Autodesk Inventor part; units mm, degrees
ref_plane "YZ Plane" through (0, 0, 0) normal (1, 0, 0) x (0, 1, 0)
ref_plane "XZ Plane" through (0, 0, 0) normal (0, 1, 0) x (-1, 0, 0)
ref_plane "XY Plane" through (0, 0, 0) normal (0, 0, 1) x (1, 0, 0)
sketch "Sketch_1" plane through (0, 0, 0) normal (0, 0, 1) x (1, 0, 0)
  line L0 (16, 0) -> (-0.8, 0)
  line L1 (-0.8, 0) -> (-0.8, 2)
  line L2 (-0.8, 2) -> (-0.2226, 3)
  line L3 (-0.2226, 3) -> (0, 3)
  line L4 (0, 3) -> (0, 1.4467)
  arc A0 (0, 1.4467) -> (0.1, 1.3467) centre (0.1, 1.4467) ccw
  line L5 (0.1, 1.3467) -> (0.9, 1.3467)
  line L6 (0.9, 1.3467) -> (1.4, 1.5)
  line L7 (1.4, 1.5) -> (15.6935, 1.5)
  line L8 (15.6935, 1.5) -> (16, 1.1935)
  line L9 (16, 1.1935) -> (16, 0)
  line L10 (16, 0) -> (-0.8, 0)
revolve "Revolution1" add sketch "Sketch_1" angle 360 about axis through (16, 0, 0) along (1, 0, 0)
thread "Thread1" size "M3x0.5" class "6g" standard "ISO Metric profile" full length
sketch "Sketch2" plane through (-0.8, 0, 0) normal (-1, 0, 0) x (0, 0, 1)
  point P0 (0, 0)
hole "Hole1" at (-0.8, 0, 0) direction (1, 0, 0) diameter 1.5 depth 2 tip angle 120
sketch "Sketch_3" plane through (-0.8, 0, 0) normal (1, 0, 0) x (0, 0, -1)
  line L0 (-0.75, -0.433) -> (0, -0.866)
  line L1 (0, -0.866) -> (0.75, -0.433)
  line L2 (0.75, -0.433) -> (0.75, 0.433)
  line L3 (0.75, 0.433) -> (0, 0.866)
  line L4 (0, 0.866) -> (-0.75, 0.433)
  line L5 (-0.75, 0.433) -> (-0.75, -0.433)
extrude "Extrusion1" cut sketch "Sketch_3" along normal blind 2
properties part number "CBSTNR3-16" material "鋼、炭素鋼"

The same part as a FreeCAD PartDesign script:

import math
import FreeCAD as App
import Part
import Sketcher
Q = App.Units.Quantity

doc = App.newDocument("Part")
body = doc.addObject("PartDesign::Body", "Body")

# Sketch on XY plane
sketch1 = body.newObject("Sketcher::SketchObject", "Sketch")
sketch1.AttachmentSupport = (doc.getObject("XY_Plane"), [""])
sketch1.MapMode = "FlatFace"
sketch1.addGeometry(Part.LineSegment(App.Vector(-0.8, 0, 0), App.Vector(16, 0, 0)), False)
sketch1.addGeometry(Part.LineSegment(App.Vector(16, 0, 0), App.Vector(16, 1.19, 0)), False)
sketch1.addGeometry(Part.LineSegment(App.Vector(16, 1.19, 0), App.Vector(15.69, 1.5, 0)), False)
sketch1.addGeometry(Part.LineSegment(App.Vector(15.69, 1.5, 0), App.Vector(1.4, 1.5, 0)), False)
sketch1.addGeometry(Part.LineSegment(App.Vector(1.4, 1.5, 0), App.Vector(0.9, 1.35, 0)), False)
sketch1.addGeometry(Part.LineSegment(App.Vector(0.9, 1.35, 0), App.Vector(0.1, 1.35, 0)), False)
sketch1.addGeometry(Part.ArcOfCircle(Part.Circle(App.Vector(0.1, 1.45, 0), App.Vector(0, 0, 1), 0.1), math.radians(180), math.radians(270)), False)
sketch1.addGeometry(Part.LineSegment(App.Vector(0, 1.45, 0), App.Vector(0, 3, 0)), False)
sketch1.addGeometry(Part.LineSegment(App.Vector(0, 3, 0), App.Vector(-0.22, 3, 0)), False)
sketch1.addGeometry(Part.LineSegment(App.Vector(-0.22, 3, 0), App.Vector(-0.8, 2, 0)), False)
sketch1.addGeometry(Part.LineSegment(App.Vector(-0.8, 2, 0), App.Vector(-0.8, 0, 0)), False)
sketch1.addConstraint(Sketcher.Constraint("Coincident", 0, 2, 1, 1))
sketch1.addConstraint(Sketcher.Constraint("Coincident", 1, 2, 2, 1))
sketch1.addConstraint(Sketcher.Constraint("Coincident", 2, 2, 3, 1))
sketch1.addConstraint(Sketcher.Constraint("Coincident", 3, 2, 4, 1))
sketch1.addConstraint(Sketcher.Constraint("Coincident", 4, 2, 5, 1))
sketch1.addConstraint(Sketcher.Constraint("Tangent", 5, 2, 6, 2))
sketch1.addConstraint(Sketcher.Constraint("Tangent", 6, 1, 7, 1))
sketch1.addConstraint(Sketcher.Constraint("Coincident", 7, 2, 8, 1))
sketch1.addConstraint(Sketcher.Constraint("Coincident", 8, 2, 9, 1))
sketch1.addConstraint(Sketcher.Constraint("Coincident", 9, 2, 10, 1))
sketch1.addConstraint(Sketcher.Constraint("Coincident", 10, 2, 0, 1))
sketch1.addConstraint(Sketcher.Constraint("Horizontal", 0))
sketch1.addConstraint(Sketcher.Constraint("Vertical", 1))
sketch1.addConstraint(Sketcher.Constraint("Horizontal", 3))
sketch1.addConstraint(Sketcher.Constraint("Horizontal", 5))
sketch1.addConstraint(Sketcher.Constraint("Vertical", 7))
sketch1.addConstraint(Sketcher.Constraint("Horizontal", 8))
sketch1.addConstraint(Sketcher.Constraint("Vertical", 10))
sketch1.addConstraint(Sketcher.Constraint("PointOnObject", 0, 2, -1))
sketch1.addConstraint(Sketcher.Constraint("PointOnObject", 6, 1, -2))
sketch1.addConstraint(Sketcher.Constraint("Radius", 6, Q("0.1 mm")))
sketch1.addConstraint(Sketcher.Constraint("DistanceY", 10, 2, 10, 1, Q("2 mm")))
sketch1.addConstraint(Sketcher.Constraint("Angle", 2, Q("135 deg")))
sketch1.addConstraint(Sketcher.Constraint("DistanceX", 0, 1, 0, 2, Q("16.8 mm")))
sketch1.addConstraint(Sketcher.Constraint("DistanceX", 5, 2, 5, 1, Q("0.8 mm")))
sketch1.addConstraint(Sketcher.Constraint("DistanceX", -1, 1, 0, 2, Q("16 mm")))
sketch1.addConstraint(Sketcher.Constraint("DistanceY", -1, 1, 7, 2, Q("3 mm")))
sketch1.addConstraint(Sketcher.Constraint("DistanceY", -1, 1, 2, 2, Q("1.5 mm")))
sketch1.addConstraint(Sketcher.Constraint("DistanceX", -1, 1, 3, 2, Q("1.4 mm")))
sketch1.addConstraint(Sketcher.Constraint("Distance", 4, Q("0.523 mm")))
sketch1.addConstraint(Sketcher.Constraint("DistanceX", 3, 2, 3, 1, Q("14.2935 mm")))
sketch1.addConstraint(Sketcher.Constraint("DistanceX", 8, 2, 8, 1, Q("0.2226 mm")))
revolution = body.newObject("PartDesign::Revolution", "Revolution")
revolution.Profile = sketch1
revolution.ReferenceAxis = (sketch1, ["H_Axis"])
revolution.Angle = 360

# Sketch on YZ plane
sketch2 = body.newObject("Sketcher::SketchObject", "Sketch001")
sketch2.AttachmentSupport = (doc.getObject("YZ_Plane"), [""])
sketch2.MapMode = "FlatFace"
sketch2.AttachmentOffset = App.Placement(App.Vector(0, 0, -0.8), App.Rotation())
sketch2.addGeometry(Part.Circle(App.Vector(0, 0, 0), App.Vector(0, 0, 1), 0.8), False)
sketch2.addConstraint(Sketcher.Constraint("Coincident", 0, 3, -1, 1))
sketch2.addConstraint(Sketcher.Constraint("Diameter", 0, Q("1.5 mm")))
doc.recompute()
hole = body.newObject("PartDesign::Hole", "Hole")
hole.Profile = sketch2
hole.ThreadType = "None"
hole.Diameter = 1.5
hole.DepthType = "Dimension"
hole.Depth = 2
hole.DrillPoint = "Angled"
hole.DrillPointAngle = 120
hole.Reversed = True

# Sketch on YZ plane
sketch3 = body.newObject("Sketcher::SketchObject", "Sketch002")
sketch3.AttachmentSupport = (doc.getObject("YZ_Plane"), [""])
sketch3.MapMode = "FlatFace"
sketch3.AttachmentOffset = App.Placement(App.Vector(0, 0, -0.8), App.Rotation())
sketch3.addGeometry(Part.LineSegment(App.Vector(0.4, 0.8, 0), App.Vector(-0.4, 0.8, 0)), False)
sketch3.addGeometry(Part.LineSegment(App.Vector(-0.4, 0.8, 0), App.Vector(-0.9, 0, 0)), False)
sketch3.addGeometry(Part.LineSegment(App.Vector(-0.9, 0, 0), App.Vector(-0.4, -0.8, 0)), False)
sketch3.addGeometry(Part.LineSegment(App.Vector(-0.4, -0.8, 0), App.Vector(0.4, -0.8, 0)), False)
sketch3.addGeometry(Part.LineSegment(App.Vector(0.4, -0.8, 0), App.Vector(0.9, 0, 0)), False)
sketch3.addGeometry(Part.LineSegment(App.Vector(0.9, 0, 0), App.Vector(0.4, 0.8, 0)), False)
sketch3.addConstraint(Sketcher.Constraint("Coincident", 0, 2, 1, 1))
sketch3.addConstraint(Sketcher.Constraint("Coincident", 1, 2, 2, 1))
sketch3.addConstraint(Sketcher.Constraint("Coincident", 2, 2, 3, 1))
sketch3.addConstraint(Sketcher.Constraint("Coincident", 3, 2, 4, 1))
sketch3.addConstraint(Sketcher.Constraint("Coincident", 4, 2, 5, 1))
sketch3.addConstraint(Sketcher.Constraint("Coincident", 5, 2, 0, 1))
sketch3.addConstraint(Sketcher.Constraint("Horizontal", 0))
sketch3.addConstraint(Sketcher.Constraint("Horizontal", 3))
sketch3.addConstraint(Sketcher.Constraint("Symmetric", 0, 2, 3, 2, -1, 1))
sketch3.addConstraint(Sketcher.Constraint("Symmetric", 1, 2, 4, 2, -1, 1))
sketch3.addConstraint(Sketcher.Constraint("PointOnObject", 1, 2, -1))
sketch3.addConstraint(Sketcher.Constraint("Parallel", 2, 5))
sketch3.addConstraint(Sketcher.Constraint("Vertical", 0, 2, 2, 2))
sketch3.addConstraint(Sketcher.Constraint("Angle", 1, Q("-119.9993 deg")))
sketch3.addConstraint(Sketcher.Constraint("DistanceY", 2, 2, 0, 2, Q("1.5 mm")))
sketch3.addConstraint(Sketcher.Constraint("DistanceX", 0, 2, 0, 1, Q("0.866 mm")))
pocket1 = body.newObject("PartDesign::Pocket", "Pocket")
pocket1.Profile = sketch3
pocket1.Length = 2
pocket1.Reversed = True

doc.recompute()
